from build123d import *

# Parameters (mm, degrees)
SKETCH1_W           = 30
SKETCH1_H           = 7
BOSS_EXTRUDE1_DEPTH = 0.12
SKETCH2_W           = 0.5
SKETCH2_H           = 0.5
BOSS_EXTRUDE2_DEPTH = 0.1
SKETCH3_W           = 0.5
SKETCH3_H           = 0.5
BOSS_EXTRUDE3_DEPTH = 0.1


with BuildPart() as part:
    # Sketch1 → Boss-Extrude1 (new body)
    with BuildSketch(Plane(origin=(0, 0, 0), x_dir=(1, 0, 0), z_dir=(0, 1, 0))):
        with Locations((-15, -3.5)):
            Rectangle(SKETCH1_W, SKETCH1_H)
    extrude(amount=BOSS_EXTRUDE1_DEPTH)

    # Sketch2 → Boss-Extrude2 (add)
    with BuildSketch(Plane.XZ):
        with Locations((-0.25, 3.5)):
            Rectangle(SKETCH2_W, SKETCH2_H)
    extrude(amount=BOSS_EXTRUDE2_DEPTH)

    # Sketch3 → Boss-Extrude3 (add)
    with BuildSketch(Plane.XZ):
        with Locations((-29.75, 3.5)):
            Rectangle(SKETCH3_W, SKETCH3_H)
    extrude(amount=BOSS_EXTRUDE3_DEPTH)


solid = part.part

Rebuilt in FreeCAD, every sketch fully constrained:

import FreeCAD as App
import Part
import Sketcher
Q = App.Units.Quantity

doc = App.newDocument("Part")
body = doc.addObject("PartDesign::Body", "Body")

# Sketch on XZ plane
sketch1 = doc.addObject("Sketcher::SketchObject", "Sketch")
body.addObject(sketch1)
sketch1.AttachmentSupport = (doc.XZ_Plane, [""])
sketch1.MapMode = "FlatFace"
sketch1.addGeometry([
    Part.LineSegment(App.Vector(-30, 0, 0), App.Vector(-30, 7, 0)),
    Part.LineSegment(App.Vector(-30, 7, 0), App.Vector(0, 7, 0)),
    Part.LineSegment(App.Vector(0, 7, 0), App.Vector(0, 0, 0)),
    Part.LineSegment(App.Vector(0, 0, 0), App.Vector(-30, 0, 0)),
], False)
sketch1.addConstraint([
    Sketcher.Constraint("Coincident", 0, 2, 1, 1),
    Sketcher.Constraint("Coincident", 1, 2, 2, 1),
    Sketcher.Constraint("Coincident", 2, 2, 3, 1),
    Sketcher.Constraint("Coincident", 3, 2, 0, 1),
    Sketcher.Constraint("Vertical", 0),
    Sketcher.Constraint("Horizontal", 1),
    Sketcher.Constraint("Vertical", 2),
    Sketcher.Constraint("Horizontal", 3),
    Sketcher.Constraint("Coincident", 2, 2, -1, 1),
    Sketcher.Constraint("DistanceX", 1, 1, 1, 2, Q("30 mm")),
    Sketcher.Constraint("DistanceY", 0, 1, 0, 2, Q("7 mm")),
])
pad1 = doc.addObject("PartDesign::Pad", "Pad")
body.addObject(pad1)
pad1.Profile = sketch1
pad1.Length = 0.12
pad1.Reversed = True

# Sketch on XZ plane
sketch2 = doc.addObject("Sketcher::SketchObject", "Sketch001")
body.addObject(sketch2)
sketch2.AttachmentSupport = (doc.XZ_Plane, [""])
sketch2.MapMode = "FlatFace"
sketch2.addGeometry([
    Part.LineSegment(App.Vector(-0.5, 3.8, 0), App.Vector(-0.5, 3.2, 0)),
    Part.LineSegment(App.Vector(-0.5, 3.2, 0), App.Vector(0, 3.2, 0)),
    Part.LineSegment(App.Vector(0, 3.2, 0), App.Vector(0, 3.8, 0)),
    Part.LineSegment(App.Vector(0, 3.8, 0), App.Vector(-0.5, 3.8, 0)),
], False)
sketch2.addConstraint([
    Sketcher.Constraint("Coincident", 0, 2, 1, 1),
    Sketcher.Constraint("Coincident", 1, 2, 2, 1),
    Sketcher.Constraint("Coincident", 2, 2, 3, 1),
    Sketcher.Constraint("Coincident", 3, 2, 0, 1),
    Sketcher.Constraint("Vertical", 0),
    Sketcher.Constraint("Horizontal", 1),
    Sketcher.Constraint("Vertical", 2),
    Sketcher.Constraint("Horizontal", 3),
    Sketcher.Constraint("PointOnObject", 1, 2, -2),
    Sketcher.Constraint("Equal", 3, 0),
    Sketcher.Constraint("DistanceX", 1, 1, 1, 2, Q("0.5 mm")),
    Sketcher.Constraint("DistanceY", -1, 1, 0, 2, Q("3.25 mm")),
])
pad2 = doc.addObject("PartDesign::Pad", "Pad001")
body.addObject(pad2)
pad2.Profile = sketch2
pad2.Length = 0.1

# Sketch on XZ plane
sketch3 = doc.addObject("Sketcher::SketchObject", "Sketch002")
body.addObject(sketch3)
sketch3.AttachmentSupport = (doc.XZ_Plane, [""])
sketch3.MapMode = "FlatFace"
sketch3.addGeometry([
    Part.LineSegment(App.Vector(-30, 3.8, 0), App.Vector(-30, 3.2, 0)),
    Part.LineSegment(App.Vector(-30, 3.2, 0), App.Vector(-29.5, 3.2, 0)),
    Part.LineSegment(App.Vector(-29.5, 3.2, 0), App.Vector(-29.5, 3.8, 0)),
    Part.LineSegment(App.Vector(-29.5, 3.8, 0), App.Vector(-30, 3.8, 0)),
], False)
sketch3.addConstraint([
    Sketcher.Constraint("Coincident", 0, 2, 1, 1),
    Sketcher.Constraint("Coincident", 1, 2, 2, 1),
    Sketcher.Constraint("Coincident", 2, 2, 3, 1),
    Sketcher.Constraint("Coincident", 3, 2, 0, 1),
    Sketcher.Constraint("Vertical", 0),
    Sketcher.Constraint("Horizontal", 1),
    Sketcher.Constraint("Vertical", 2),
    Sketcher.Constraint("Horizontal", 3),
    Sketcher.Constraint("Equal", 3, 0),
    Sketcher.Constraint("DistanceX", 1, 1, 1, 2, Q("0.5 mm")),
    Sketcher.Constraint("DistanceX", 0, 2, -1, 1, Q("30 mm")),
    Sketcher.Constraint("DistanceY", -1, 1, 0, 2, Q("3.25 mm")),
])
pad3 = doc.addObject("PartDesign::Pad", "Pad002")
body.addObject(pad3)
pad3.Profile = sketch3
pad3.Length = 0.1

doc.recompute()
